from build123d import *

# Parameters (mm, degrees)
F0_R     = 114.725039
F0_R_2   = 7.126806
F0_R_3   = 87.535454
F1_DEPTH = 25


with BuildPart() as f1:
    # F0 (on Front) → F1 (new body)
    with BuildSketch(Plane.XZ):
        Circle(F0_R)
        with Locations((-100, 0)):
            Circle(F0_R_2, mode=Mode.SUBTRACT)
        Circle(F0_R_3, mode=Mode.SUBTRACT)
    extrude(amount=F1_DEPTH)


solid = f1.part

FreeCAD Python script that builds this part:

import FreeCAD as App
import Part
import Sketcher

V = App.Vector

doc = App.newDocument("Part")
body = doc.addObject("PartDesign::Body", "Body")

# Sketch on XZ plane
sketch1 = doc.addObject("Sketcher::SketchObject", "Sketch")
body.addObject(sketch1)
sketch1.AttachmentSupport = (doc.XZ_Plane, [""])
sketch1.MapMode = "FlatFace"
sketch1.addGeometry(Part.Circle(V(0, 0, 0), V(0, 0, 1), 114.725039), False)
sketch1.addGeometry(Part.Circle(V(-100, 0, 0), V(0, 0, 1), 7.126806), False)
sketch1.addGeometry(Part.Circle(V(0, 0, 0), V(0, 0, 1), 87.535454), False)
sketch1.addConstraint(Sketcher.Constraint("Coincident", 0, 3, -1, 1))
sketch1.addConstraint(Sketcher.Constraint("Coincident", 2, 3, -1, 1))
sketch1.addConstraint(Sketcher.Constraint("PointOnObject", 1, 3, -1))
sketch1.addConstraint(Sketcher.Constraint("DistanceX", 1, 3, -1, 1, 100.0))
sketch1.addConstraint(Sketcher.Constraint("Diameter", 2, 175.070908))
sketch1.addConstraint(Sketcher.Constraint("Diameter", 0, 229.450078))
sketch1.addConstraint(Sketcher.Constraint("Diameter", 1, 14.253612))
pad1 = doc.addObject("PartDesign::Pad", "Pad")
body.addObject(pad1)
pad1.Profile = sketch1
pad1.Length = 25

doc.recompute()
